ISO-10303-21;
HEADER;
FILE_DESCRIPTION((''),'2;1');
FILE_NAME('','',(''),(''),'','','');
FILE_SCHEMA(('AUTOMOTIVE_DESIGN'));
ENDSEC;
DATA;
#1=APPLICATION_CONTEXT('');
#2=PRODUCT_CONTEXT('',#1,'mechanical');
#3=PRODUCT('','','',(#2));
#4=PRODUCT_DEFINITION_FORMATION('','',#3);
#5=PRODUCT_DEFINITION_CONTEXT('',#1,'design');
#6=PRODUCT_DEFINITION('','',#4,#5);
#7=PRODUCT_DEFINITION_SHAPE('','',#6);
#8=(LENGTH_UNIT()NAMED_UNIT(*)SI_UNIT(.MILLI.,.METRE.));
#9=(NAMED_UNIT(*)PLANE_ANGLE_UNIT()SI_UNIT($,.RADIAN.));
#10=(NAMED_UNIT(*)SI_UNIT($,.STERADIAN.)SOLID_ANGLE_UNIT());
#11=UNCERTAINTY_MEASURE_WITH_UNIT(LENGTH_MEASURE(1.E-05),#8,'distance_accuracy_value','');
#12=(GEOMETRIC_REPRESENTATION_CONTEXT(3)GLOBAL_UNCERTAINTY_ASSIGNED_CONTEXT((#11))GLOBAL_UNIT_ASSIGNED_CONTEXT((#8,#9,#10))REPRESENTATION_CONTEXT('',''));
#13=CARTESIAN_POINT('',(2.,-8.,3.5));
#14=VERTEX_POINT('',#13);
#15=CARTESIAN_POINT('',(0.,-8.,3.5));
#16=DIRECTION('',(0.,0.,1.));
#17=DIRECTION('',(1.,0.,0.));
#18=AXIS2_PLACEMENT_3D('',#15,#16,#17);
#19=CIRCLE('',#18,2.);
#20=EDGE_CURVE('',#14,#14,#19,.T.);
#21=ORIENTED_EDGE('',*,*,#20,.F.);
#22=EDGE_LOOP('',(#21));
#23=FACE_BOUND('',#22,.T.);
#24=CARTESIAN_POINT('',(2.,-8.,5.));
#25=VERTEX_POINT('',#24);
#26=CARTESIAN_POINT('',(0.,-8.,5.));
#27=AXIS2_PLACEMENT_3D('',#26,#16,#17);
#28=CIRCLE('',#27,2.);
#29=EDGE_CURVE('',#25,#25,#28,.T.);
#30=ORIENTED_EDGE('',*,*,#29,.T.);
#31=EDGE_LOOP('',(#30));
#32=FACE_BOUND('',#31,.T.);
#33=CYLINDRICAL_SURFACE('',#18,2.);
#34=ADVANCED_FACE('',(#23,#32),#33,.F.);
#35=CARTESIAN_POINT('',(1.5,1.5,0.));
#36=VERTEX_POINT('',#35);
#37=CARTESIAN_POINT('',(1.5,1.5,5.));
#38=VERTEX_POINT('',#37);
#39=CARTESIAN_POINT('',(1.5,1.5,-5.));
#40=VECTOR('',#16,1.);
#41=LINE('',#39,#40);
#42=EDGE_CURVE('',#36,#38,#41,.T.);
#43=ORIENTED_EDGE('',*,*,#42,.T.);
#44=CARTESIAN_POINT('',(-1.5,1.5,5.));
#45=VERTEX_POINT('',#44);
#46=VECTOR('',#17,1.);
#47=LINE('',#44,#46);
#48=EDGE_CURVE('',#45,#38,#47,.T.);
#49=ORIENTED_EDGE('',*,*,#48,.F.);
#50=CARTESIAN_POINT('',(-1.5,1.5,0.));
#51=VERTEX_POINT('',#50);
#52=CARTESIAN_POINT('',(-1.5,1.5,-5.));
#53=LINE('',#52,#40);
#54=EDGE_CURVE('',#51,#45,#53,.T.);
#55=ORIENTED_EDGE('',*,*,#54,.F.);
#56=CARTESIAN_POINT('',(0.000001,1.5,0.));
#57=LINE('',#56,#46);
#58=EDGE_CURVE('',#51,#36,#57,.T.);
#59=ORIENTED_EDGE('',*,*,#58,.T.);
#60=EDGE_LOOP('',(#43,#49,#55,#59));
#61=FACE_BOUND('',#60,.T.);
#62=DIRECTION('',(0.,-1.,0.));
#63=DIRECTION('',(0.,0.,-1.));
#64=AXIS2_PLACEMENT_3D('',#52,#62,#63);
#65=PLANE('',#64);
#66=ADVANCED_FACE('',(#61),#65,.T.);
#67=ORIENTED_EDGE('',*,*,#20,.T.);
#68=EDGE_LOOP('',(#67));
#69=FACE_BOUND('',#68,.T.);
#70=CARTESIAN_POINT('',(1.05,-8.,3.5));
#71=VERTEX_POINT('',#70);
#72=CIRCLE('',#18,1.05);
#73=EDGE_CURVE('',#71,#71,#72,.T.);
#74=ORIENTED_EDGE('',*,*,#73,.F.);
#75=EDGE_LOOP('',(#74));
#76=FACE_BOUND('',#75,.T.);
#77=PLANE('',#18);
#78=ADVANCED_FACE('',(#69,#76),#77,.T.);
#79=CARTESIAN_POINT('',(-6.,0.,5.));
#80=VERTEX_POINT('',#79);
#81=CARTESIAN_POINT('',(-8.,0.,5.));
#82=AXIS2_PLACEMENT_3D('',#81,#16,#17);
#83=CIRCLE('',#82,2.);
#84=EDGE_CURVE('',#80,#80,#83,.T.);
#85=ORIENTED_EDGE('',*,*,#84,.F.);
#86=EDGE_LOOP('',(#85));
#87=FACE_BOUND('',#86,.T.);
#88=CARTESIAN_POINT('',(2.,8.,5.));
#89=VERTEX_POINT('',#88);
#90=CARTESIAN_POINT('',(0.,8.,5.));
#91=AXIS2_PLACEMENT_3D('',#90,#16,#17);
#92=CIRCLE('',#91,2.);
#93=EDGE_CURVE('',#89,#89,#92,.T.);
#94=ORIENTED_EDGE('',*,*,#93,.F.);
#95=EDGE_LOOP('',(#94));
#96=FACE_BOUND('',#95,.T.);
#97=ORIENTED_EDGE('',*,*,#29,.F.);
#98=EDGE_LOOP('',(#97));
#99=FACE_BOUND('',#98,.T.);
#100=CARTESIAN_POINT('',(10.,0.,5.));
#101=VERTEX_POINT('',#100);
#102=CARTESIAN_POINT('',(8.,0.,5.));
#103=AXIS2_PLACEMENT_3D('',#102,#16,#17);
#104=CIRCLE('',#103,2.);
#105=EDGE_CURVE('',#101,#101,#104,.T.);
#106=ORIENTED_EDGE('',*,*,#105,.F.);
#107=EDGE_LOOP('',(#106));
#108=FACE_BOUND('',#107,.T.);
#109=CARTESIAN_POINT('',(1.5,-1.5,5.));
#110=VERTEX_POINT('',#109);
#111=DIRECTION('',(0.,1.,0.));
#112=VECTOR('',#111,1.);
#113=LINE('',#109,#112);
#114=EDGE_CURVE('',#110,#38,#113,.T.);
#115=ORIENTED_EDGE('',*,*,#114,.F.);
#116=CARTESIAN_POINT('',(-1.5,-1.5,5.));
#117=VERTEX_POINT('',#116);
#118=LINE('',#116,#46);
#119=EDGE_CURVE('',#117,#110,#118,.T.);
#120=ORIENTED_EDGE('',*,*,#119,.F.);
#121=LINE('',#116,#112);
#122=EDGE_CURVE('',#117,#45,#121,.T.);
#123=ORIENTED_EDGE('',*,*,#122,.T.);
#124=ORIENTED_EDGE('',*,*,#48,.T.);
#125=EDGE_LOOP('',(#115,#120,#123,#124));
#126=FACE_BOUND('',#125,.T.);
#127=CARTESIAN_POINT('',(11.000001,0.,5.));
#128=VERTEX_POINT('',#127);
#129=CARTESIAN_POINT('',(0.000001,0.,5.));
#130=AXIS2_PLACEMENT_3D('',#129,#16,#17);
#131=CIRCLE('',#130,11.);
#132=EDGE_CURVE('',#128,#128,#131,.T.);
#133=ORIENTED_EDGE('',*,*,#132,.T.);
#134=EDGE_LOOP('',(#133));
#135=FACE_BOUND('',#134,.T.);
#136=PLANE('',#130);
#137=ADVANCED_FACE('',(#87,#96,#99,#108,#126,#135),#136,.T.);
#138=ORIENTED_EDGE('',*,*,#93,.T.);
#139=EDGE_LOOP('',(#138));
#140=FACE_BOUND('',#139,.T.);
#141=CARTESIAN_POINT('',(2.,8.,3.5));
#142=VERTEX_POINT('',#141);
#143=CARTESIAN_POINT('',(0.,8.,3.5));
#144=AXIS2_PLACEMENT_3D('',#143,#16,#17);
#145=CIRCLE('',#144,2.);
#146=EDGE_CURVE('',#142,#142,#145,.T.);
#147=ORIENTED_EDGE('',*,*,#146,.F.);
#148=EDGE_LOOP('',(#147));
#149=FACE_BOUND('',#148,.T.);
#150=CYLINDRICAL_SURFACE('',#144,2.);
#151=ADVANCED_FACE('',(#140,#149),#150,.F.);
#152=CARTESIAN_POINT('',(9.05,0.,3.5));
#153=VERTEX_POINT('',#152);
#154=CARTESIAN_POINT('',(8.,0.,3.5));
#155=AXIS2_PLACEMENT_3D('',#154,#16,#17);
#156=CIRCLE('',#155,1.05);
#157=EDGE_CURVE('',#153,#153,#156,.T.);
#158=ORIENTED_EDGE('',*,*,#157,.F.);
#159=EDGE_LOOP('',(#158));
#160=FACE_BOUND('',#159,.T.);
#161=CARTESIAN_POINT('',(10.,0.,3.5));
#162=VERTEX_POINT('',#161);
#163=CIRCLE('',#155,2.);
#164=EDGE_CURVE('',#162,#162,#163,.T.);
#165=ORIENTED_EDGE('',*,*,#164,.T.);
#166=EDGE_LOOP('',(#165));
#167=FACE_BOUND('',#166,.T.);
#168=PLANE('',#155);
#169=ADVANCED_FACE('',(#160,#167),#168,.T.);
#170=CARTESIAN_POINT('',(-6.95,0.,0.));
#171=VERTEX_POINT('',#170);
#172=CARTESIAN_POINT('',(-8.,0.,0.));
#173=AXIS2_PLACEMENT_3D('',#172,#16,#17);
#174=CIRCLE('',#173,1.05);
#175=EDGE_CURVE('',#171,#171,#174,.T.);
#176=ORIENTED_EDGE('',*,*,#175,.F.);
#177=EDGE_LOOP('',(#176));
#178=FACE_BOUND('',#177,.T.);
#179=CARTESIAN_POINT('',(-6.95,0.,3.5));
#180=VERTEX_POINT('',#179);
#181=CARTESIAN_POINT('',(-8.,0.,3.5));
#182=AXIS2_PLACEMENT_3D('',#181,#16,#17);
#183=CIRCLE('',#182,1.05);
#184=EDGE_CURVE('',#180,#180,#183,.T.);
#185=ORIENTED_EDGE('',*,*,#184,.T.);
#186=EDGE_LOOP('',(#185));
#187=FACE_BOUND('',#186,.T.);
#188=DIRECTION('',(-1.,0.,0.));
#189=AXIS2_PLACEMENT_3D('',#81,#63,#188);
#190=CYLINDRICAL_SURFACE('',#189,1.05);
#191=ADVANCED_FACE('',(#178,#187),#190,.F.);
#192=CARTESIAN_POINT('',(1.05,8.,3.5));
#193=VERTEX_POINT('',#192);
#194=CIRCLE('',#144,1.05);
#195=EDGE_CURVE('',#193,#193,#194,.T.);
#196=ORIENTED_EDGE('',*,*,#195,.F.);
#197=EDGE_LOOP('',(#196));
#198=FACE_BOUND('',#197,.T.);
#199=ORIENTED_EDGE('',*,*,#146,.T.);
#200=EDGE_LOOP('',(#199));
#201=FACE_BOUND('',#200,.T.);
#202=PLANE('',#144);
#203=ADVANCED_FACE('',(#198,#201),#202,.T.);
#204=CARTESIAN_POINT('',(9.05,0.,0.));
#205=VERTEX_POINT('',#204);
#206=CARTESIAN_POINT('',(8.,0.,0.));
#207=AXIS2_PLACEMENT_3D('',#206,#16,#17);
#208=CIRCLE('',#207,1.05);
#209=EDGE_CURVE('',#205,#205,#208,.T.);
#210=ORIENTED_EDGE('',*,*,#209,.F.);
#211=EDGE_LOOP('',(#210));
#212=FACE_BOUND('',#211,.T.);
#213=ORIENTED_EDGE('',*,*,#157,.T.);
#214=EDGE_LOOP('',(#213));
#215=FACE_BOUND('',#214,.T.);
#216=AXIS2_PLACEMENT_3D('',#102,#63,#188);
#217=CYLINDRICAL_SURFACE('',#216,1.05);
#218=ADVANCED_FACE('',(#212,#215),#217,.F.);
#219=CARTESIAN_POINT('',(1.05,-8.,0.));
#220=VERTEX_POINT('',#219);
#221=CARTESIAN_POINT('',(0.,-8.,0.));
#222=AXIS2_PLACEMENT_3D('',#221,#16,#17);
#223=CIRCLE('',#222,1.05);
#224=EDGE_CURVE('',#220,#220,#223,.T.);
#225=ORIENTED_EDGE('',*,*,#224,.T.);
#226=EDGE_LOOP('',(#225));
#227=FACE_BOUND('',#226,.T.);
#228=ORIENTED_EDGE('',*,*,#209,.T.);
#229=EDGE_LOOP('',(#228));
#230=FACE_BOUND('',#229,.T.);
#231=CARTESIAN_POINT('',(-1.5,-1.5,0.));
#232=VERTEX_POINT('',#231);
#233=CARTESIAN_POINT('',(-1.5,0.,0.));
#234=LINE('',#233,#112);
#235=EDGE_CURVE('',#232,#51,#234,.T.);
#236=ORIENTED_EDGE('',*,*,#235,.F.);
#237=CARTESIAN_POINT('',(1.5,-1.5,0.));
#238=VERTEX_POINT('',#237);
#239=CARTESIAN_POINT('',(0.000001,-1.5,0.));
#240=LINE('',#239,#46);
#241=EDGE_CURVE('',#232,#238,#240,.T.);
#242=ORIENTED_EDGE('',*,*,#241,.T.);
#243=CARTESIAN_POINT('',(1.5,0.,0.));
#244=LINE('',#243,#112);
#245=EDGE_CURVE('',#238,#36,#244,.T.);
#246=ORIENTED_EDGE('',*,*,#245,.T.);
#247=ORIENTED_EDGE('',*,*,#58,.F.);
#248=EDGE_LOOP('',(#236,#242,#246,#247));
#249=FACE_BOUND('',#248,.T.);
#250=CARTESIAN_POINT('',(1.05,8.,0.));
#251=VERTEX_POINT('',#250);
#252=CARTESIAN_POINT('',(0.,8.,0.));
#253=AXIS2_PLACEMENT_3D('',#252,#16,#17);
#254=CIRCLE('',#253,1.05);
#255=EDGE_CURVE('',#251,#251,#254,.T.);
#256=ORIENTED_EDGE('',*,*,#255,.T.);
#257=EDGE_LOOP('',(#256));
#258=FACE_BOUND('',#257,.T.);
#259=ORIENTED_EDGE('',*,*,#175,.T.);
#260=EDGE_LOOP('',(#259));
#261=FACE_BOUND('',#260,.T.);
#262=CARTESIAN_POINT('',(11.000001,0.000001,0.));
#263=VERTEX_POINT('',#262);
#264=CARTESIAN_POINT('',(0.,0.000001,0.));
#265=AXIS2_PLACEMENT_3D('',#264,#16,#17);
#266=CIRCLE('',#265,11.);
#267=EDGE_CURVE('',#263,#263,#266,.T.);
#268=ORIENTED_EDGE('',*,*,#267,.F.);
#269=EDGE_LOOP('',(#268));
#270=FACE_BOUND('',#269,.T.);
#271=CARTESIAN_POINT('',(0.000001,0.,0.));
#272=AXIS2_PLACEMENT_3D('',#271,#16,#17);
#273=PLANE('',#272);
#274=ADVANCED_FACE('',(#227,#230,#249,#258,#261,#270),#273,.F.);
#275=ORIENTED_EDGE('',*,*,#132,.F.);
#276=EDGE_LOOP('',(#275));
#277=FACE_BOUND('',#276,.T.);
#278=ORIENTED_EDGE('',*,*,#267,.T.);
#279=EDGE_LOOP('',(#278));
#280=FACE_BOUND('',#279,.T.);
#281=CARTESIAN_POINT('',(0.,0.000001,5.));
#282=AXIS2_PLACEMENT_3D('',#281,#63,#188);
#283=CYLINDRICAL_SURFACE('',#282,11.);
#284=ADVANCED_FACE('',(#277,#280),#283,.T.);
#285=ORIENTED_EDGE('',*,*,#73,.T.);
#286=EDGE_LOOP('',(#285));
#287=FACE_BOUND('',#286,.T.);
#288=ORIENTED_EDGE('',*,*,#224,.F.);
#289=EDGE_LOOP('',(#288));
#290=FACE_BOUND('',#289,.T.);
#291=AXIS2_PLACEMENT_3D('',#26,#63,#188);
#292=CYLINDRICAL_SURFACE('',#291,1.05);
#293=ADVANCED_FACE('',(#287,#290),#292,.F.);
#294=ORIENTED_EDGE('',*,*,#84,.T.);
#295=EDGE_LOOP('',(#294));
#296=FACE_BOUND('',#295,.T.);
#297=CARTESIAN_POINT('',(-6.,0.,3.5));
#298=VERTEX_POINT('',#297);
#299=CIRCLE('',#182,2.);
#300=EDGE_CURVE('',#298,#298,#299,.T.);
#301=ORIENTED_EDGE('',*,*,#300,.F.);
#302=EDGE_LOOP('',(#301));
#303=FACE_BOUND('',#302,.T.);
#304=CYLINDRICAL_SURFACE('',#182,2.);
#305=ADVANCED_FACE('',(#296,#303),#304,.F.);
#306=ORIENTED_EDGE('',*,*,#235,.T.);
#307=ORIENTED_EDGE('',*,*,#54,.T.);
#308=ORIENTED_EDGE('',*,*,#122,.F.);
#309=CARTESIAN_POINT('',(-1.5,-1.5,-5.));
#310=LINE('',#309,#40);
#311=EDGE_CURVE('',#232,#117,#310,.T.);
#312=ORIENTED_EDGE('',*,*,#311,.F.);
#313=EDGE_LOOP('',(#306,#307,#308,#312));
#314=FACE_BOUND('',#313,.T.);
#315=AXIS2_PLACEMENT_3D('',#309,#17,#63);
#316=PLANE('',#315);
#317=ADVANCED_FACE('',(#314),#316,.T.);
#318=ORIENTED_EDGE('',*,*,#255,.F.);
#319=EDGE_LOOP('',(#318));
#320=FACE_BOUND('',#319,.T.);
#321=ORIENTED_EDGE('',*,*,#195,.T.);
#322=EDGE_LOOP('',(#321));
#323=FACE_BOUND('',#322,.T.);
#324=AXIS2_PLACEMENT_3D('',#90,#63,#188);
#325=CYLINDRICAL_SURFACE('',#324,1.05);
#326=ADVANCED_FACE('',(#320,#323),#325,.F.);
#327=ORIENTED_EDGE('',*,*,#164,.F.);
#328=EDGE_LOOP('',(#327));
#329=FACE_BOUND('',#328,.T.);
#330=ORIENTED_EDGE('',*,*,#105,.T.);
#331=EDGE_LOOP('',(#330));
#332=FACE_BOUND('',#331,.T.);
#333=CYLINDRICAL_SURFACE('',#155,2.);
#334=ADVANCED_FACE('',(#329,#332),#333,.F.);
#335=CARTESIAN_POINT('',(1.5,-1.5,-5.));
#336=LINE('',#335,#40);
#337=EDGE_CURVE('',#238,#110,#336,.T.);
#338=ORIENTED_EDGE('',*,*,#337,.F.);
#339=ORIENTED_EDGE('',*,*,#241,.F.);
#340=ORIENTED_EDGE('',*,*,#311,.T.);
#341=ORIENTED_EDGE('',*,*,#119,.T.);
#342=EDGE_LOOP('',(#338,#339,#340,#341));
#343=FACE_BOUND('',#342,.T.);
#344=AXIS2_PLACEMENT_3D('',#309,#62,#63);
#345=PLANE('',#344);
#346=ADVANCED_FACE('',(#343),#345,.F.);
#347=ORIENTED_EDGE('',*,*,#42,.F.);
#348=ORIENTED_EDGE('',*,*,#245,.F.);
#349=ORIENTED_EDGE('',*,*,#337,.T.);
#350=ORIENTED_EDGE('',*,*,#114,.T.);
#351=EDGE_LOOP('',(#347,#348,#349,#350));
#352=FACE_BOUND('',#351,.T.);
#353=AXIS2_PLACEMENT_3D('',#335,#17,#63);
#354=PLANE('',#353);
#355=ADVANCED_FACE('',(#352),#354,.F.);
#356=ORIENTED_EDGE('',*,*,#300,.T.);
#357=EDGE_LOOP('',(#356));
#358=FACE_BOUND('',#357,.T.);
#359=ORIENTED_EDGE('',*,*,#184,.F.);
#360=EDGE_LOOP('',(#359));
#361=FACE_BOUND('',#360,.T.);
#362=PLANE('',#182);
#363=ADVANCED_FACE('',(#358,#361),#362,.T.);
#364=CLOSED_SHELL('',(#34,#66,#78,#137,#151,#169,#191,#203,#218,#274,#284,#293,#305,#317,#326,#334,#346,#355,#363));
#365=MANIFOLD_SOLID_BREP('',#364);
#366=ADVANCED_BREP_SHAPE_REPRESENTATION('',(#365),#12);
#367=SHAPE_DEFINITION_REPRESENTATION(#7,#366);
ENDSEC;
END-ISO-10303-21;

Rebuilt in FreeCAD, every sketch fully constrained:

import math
import FreeCAD as App
import Part
import Sketcher

doc = App.newDocument("Part")
body = doc.addObject("PartDesign::Body", "Body")

# Sketch on XY plane
sketch1 = doc.addObject("Sketcher::SketchObject", "Sketch")
body.addObject(sketch1)
sketch1.AttachmentSupport = (doc.XY_Plane, [""])
sketch1.MapMode = "FlatFace"
sketch1.addGeometry([
    Part.ArcOfCircle(Part.Circle(App.Vector(0, 0, 0), App.Vector(0, 0, 1), 11), math.radians(179), math.radians(354)),  # 0
    Part.ArcOfCircle(Part.Circle(App.Vector(0, 0, 0), App.Vector(0, 0, 1), 11), math.radians(-6), math.radians(0)),  # 1
    Part.ArcOfCircle(Part.Circle(App.Vector(0, 0, 0), App.Vector(0, 0, 1), 11), math.radians(0), math.radians(4.43)),  # 2
    Part.ArcOfCircle(Part.Circle(App.Vector(0, 0, 0), App.Vector(0, 0, 1), 11), math.radians(4), math.radians(179)),  # 3
    Part.ArcOfCircle(Part.Circle(App.Vector(0, -8, 0), App.Vector(0, 0, 1), 1.1), math.radians(-90), math.radians(90)),  # 4
    Part.ArcOfCircle(Part.Circle(App.Vector(0, -8, 0), App.Vector(0, 0, 1), 1.1), math.radians(90), math.radians(270)),  # 5
    Part.ArcOfCircle(Part.Circle(App.Vector(-8, 0, 0), App.Vector(0, 0, 1), 1.1), math.radians(-180), math.radians(-90)),  # 6
    Part.ArcOfCircle(Part.Circle(App.Vector(-8, 0, 0), App.Vector(0, 0, 1), 1.1), math.radians(90), math.radians(180)),  # 7
    Part.ArcOfCircle(Part.Circle(App.Vector(-8, 0, 0), App.Vector(0, 0, 1), 1.1), math.radians(-90), math.radians(90)),  # 8
    Part.ArcOfCircle(Part.Circle(App.Vector(0, 8, 0), App.Vector(0, 0, 1), 1.1), math.radians(90), math.radians(270)),  # 9
    Part.ArcOfCircle(Part.Circle(App.Vector(0, 8, 0), App.Vector(0, 0, 1), 1.1), math.radians(-90), math.radians(90)),  # 10
    Part.ArcOfCircle(Part.Circle(App.Vector(8, 0, 0), App.Vector(0, 0, 1), 1.1), math.radians(90), math.radians(270)),  # 11
    Part.ArcOfCircle(Part.Circle(App.Vector(8, 0, 0), App.Vector(0, 0, 1), 1.1), math.radians(-90), math.radians(90)),  # 12
], False)
sketch1.addConstraint([
    Sketcher.Constraint("Tangent", 0, 2, 1, 1),
    Sketcher.Constraint("Tangent", 1, 2, 2, 1),
    Sketcher.Constraint("Tangent", 2, 2, 3, 1),
    Sketcher.Constraint("Tangent", 3, 2, 0, 1),
    Sketcher.Constraint("Tangent", 4, 1, 5, 2),
    Sketcher.Constraint("Coincident", 5, 1, 4, 2),
    Sketcher.Constraint("Tangent", 6, 1, 7, 2),
    Sketcher.Constraint("Tangent", 7, 1, 8, 2),
    Sketcher.Constraint("Tangent", 8, 1, 6, 2),
    Sketcher.Constraint("Tangent", 9, 1, 10, 2),
    Sketcher.Constraint("Coincident", 10, 1, 9, 2),
    Sketcher.Constraint("Tangent", 11, 1, 12, 2),
    Sketcher.Constraint("Coincident", 12, 1, 11, 2),
    Sketcher.Constraint("Coincident", 0, 3, -1, 1),
    Sketcher.Constraint("Equal", 0, 1),
    Sketcher.Constraint("Equal", 5, 6),
    Sketcher.Constraint("Equal", 8, 9),
    Sketcher.Constraint("Equal", 10, 11),
    Sketcher.Constraint("Symmetric", 4, 3, 9, 3, -1, 1),
    Sketcher.Constraint("Symmetric", 6, 3, 11, 3, -1, 1),
    Sketcher.Constraint("Symmetric", 7, 1, 11, 1, -2),
    Sketcher.Constraint("PointOnObject", 4, 3, -2),
    Sketcher.Constraint("PointOnObject", 1, 2, -1),
    Sketcher.Constraint("PointOnObject", 4, 1, -2),
    Sketcher.Constraint("PointOnObject", 5, 1, -2),
    Sketcher.Constraint("PointOnObject", 9, 1, -2),
    Sketcher.Constraint("PointOnObject", 10, 1, -2),
    Sketcher.Constraint("Vertical", 8, 3, 7, 1),
    Sketcher.Constraint("Vertical", 7, 1, 8, 1),
    Sketcher.Constraint("Vertical", 11, 1, 12, 1),
    Sketcher.Constraint("Radius", 0, 11.0),
    Sketcher.Constraint("Radius", 4, 1.05),
    Sketcher.Constraint("DistanceY", 4, 3, -1, 1, 8.0),
    Sketcher.Constraint("DistanceX", 6, 3, -1, 1, 8.0),
    Sketcher.Constraint("DistanceY", 0, 2, 2, 2, 2.0),
    Sketcher.Constraint("DistanceY", 2, 2, 11, 1, 0.2),
    Sketcher.Constraint("DistanceX", 3, 2, -1, 1, 10.997222),
    Sketcher.Constraint("DistanceY", 6, 1, 3, 2, 0.247302),
])
pad1 = doc.addObject("PartDesign::Pad", "Pad")
body.addObject(pad1)
pad1.Profile = sketch1
pad1.Length = 5

# Sketch on XY plane
sketch2 = doc.addObject("Sketcher::SketchObject", "Sketch001")
body.addObject(sketch2)
sketch2.AttachmentSupport = (doc.XY_Plane, [""])
sketch2.MapMode = "FlatFace"
sketch2.AttachmentOffset = App.Placement(App.Vector(0, 0, 5), App.Rotation())
sketch2.addGeometry([
    Part.Circle(App.Vector(8, 0, 0), App.Vector(0, 0, 1), 2),
    Part.Circle(App.Vector(0, -8, 0), App.Vector(0, 0, 1), 2),
    Part.Circle(App.Vector(-8, 0, 0), App.Vector(0, 0, 1), 2),
    Part.Circle(App.Vector(0, 8, 0), App.Vector(0, 0, 1), 2),
], False)
sketch2.addConstraint([
    Sketcher.Constraint("Equal", 0, 1),
    Sketcher.Constraint("Equal", 1, 2),
    Sketcher.Constraint("Equal", 2, 3),
    Sketcher.Constraint("Symmetric", 0, 3, 2, 3, -1, 1),
    Sketcher.Constraint("Symmetric", 1, 3, 3, 3, -1, 1),
    Sketcher.Constraint("PointOnObject", 0, 3, -1),
    Sketcher.Constraint("PointOnObject", 1, 3, -2),
    Sketcher.Constraint("Diameter", 0, 4.0),
    Sketcher.Constraint("DistanceX", -1, 1, 0, 3, 8.0),
    Sketcher.Constraint("DistanceY", 1, 3, -1, 1, 8.0),
])
pocket1 = doc.addObject("PartDesign::Pocket", "Pocket")
body.addObject(pocket1)
pocket1.Profile = sketch2
pocket1.Length = 1.5

# Sketch on XY plane
sketch3 = doc.addObject("Sketcher::SketchObject", "Sketch002")
body.addObject(sketch3)
sketch3.AttachmentSupport = (doc.XY_Plane, [""])
sketch3.MapMode = "FlatFace"
sketch3.AttachmentOffset = App.Placement(App.Vector(0, 0, 5), App.Rotation())
sketch3.addGeometry([
    Part.LineSegment(App.Vector(-1.5, 1.5, 0), App.Vector(-1.5, -1.5, 0)),
    Part.LineSegment(App.Vector(-1.5, -1.5, 0), App.Vector(1.5, -1.5, 0)),
    Part.LineSegment(App.Vector(1.5, -1.5, 0), App.Vector(1.5, 1.5, 0)),
    Part.LineSegment(App.Vector(1.5, 1.5, 0), App.Vector(-1.5, 1.5, 0)),
], False)
sketch3.addConstraint([
    Sketcher.Constraint("Coincident", 0, 2, 1, 1),
    Sketcher.Constraint("Coincident", 1, 2, 2, 1),
    Sketcher.Constraint("Coincident", 2, 2, 3, 1),
    Sketcher.Constraint("Coincident", 3, 2, 0, 1),
    Sketcher.Constraint("Vertical", 0),
    Sketcher.Constraint("Horizontal", 1),
    Sketcher.Constraint("Vertical", 2),
    Sketcher.Constraint("Horizontal", 3),
    Sketcher.Constraint("Symmetric", 0, 2, 2, 2, -1, 1),
    Sketcher.Constraint("Equal", 3, 0),
    Sketcher.Constraint("DistanceX", 1, 1, 1, 2, 3.0),
])
pocket2 = doc.addObject("PartDesign::Pocket", "Pocket001")
body.addObject(pocket2)
pocket2.Profile = sketch3
pocket2.Length = 10

doc.recompute()
